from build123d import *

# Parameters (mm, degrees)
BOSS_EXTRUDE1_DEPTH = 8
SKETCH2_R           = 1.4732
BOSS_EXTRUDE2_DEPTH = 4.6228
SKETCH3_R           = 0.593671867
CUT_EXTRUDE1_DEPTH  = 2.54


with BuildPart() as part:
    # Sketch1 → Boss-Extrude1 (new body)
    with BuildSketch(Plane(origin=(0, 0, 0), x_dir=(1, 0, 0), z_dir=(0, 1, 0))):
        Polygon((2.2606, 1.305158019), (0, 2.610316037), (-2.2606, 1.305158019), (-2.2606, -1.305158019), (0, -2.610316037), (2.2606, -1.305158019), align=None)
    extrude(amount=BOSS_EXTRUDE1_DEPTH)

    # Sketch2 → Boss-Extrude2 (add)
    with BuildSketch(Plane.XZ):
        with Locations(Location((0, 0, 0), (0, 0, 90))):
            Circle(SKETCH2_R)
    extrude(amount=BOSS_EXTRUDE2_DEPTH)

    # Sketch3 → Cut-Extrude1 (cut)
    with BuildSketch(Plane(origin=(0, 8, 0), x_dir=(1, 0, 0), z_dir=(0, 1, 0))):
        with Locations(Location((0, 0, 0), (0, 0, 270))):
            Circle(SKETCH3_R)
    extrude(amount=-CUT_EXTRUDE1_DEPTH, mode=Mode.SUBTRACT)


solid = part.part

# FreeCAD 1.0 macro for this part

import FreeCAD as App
import Part
import Sketcher

V = App.Vector
Q = App.Units.Quantity

doc = App.newDocument("Part")
body = doc.addObject("PartDesign::Body", "Body")

sketch1 = body.newObject("Sketcher::SketchObject", "Sketch")
sketch1.AttachmentSupport = (doc.getObject("XZ_Plane"), [""])
sketch1.MapMode = "FlatFace"
sketch1.addGeometry(Part.LineSegment(V(2.3, -1.3, 0), V(0, -2.6, 0)), False)
sketch1.addGeometry(Part.LineSegment(V(0, -2.6, 0), V(-2.3, -1.3, 0)), False)
sketch1.addGeometry(Part.LineSegment(V(-2.3, -1.3, 0), V(-2.3, 1.3, 0)), False)
sketch1.addGeometry(Part.LineSegment(V(-2.3, 1.3, 0), V(0, 2.6, 0)), False)
sketch1.addGeometry(Part.LineSegment(V(0, 2.6, 0), V(2.3, 1.3, 0)), False)
sketch1.addGeometry(Part.LineSegment(V(2.3, 1.3, 0), V(2.3, -1.3, 0)), False)
sketch1.addConstraint(Sketcher.Constraint("Coincident", 0, 2, 1, 1))
sketch1.addConstraint(Sketcher.Constraint("Coincident", 1, 2, 2, 1))
sketch1.addConstraint(Sketcher.Constraint("Coincident", 2, 2, 3, 1))
sketch1.addConstraint(Sketcher.Constraint("Coincident", 3, 2, 4, 1))
sketch1.addConstraint(Sketcher.Constraint("Coincident", 4, 2, 5, 1))
sketch1.addConstraint(Sketcher.Constraint("Coincident", 5, 2, 0, 1))
sketch1.addConstraint(Sketcher.Constraint("Vertical", 2))
sketch1.addConstraint(Sketcher.Constraint("Vertical", 5))
sketch1.addConstraint(Sketcher.Constraint("Symmetric", 0, 2, 3, 2, -1, 1))
sketch1.addConstraint(Sketcher.Constraint("Symmetric", 1, 2, 4, 2, -1, 1))
sketch1.addConstraint(Sketcher.Constraint("PointOnObject", 0, 2, -2))
sketch1.addConstraint(Sketcher.Constraint("Parallel", 0, 3))
sketch1.addConstraint(Sketcher.Constraint("Horizontal", 2, 2, 4, 2))
sketch1.addConstraint(Sketcher.Constraint("Angle", 0, Q("-150 deg")))
sketch1.addConstraint(Sketcher.Constraint("DistanceX", 1, 2, -1, 1, Q("0.089 in")))
sketch1.addConstraint(Sketcher.Constraint("DistanceY", 2, 1, 2, 2, Q("2.610316 mm")))
pad1 = body.newObject("PartDesign::Pad", "Pad")
pad1.Profile = sketch1
pad1.Length = 8
pad1.Reversed = True

sketch2 = body.newObject("Sketcher::SketchObject", "Sketch001")
sketch2.AttachmentSupport = (doc.getObject("XZ_Plane"), [""])
sketch2.MapMode = "FlatFace"
sketch2.addGeometry(Part.Circle(V(0, 0, 0), V(0, 0, 1), 1.5), False)
sketch2.addConstraint(Sketcher.Constraint("Coincident", 0, 3, -1, 1))
sketch2.addConstraint(Sketcher.Constraint("Diameter", 0, Q("0.116 in")))
pad2 = body.newObject("PartDesign::Pad", "Pad001")
pad2.Profile = sketch2
pad2.Length = Q("0.182 in")

sketch3 = body.newObject("Sketcher::SketchObject", "Sketch002")
sketch3.AttachmentSupport = (doc.getObject("XZ_Plane"), [""])
sketch3.MapMode = "FlatFace"
sketch3.AttachmentOffset = App.Placement(V(0, 0, -8), App.Rotation())
sketch3.addGeometry(Part.Circle(V(0, 0, 0), V(0, 0, 1), 0.6), False)
sketch3.addConstraint(Sketcher.Constraint("Coincident", 0, 3, -1, 1))
sketch3.addConstraint(Sketcher.Constraint("Diameter", 0, Q("1.187344 mm")))
pocket1 = body.newObject("PartDesign::Pocket", "Pocket")
pocket1.Profile = sketch3
pocket1.Length = Q("0.1 in")
pocket1.Reversed = True

doc.recompute()
